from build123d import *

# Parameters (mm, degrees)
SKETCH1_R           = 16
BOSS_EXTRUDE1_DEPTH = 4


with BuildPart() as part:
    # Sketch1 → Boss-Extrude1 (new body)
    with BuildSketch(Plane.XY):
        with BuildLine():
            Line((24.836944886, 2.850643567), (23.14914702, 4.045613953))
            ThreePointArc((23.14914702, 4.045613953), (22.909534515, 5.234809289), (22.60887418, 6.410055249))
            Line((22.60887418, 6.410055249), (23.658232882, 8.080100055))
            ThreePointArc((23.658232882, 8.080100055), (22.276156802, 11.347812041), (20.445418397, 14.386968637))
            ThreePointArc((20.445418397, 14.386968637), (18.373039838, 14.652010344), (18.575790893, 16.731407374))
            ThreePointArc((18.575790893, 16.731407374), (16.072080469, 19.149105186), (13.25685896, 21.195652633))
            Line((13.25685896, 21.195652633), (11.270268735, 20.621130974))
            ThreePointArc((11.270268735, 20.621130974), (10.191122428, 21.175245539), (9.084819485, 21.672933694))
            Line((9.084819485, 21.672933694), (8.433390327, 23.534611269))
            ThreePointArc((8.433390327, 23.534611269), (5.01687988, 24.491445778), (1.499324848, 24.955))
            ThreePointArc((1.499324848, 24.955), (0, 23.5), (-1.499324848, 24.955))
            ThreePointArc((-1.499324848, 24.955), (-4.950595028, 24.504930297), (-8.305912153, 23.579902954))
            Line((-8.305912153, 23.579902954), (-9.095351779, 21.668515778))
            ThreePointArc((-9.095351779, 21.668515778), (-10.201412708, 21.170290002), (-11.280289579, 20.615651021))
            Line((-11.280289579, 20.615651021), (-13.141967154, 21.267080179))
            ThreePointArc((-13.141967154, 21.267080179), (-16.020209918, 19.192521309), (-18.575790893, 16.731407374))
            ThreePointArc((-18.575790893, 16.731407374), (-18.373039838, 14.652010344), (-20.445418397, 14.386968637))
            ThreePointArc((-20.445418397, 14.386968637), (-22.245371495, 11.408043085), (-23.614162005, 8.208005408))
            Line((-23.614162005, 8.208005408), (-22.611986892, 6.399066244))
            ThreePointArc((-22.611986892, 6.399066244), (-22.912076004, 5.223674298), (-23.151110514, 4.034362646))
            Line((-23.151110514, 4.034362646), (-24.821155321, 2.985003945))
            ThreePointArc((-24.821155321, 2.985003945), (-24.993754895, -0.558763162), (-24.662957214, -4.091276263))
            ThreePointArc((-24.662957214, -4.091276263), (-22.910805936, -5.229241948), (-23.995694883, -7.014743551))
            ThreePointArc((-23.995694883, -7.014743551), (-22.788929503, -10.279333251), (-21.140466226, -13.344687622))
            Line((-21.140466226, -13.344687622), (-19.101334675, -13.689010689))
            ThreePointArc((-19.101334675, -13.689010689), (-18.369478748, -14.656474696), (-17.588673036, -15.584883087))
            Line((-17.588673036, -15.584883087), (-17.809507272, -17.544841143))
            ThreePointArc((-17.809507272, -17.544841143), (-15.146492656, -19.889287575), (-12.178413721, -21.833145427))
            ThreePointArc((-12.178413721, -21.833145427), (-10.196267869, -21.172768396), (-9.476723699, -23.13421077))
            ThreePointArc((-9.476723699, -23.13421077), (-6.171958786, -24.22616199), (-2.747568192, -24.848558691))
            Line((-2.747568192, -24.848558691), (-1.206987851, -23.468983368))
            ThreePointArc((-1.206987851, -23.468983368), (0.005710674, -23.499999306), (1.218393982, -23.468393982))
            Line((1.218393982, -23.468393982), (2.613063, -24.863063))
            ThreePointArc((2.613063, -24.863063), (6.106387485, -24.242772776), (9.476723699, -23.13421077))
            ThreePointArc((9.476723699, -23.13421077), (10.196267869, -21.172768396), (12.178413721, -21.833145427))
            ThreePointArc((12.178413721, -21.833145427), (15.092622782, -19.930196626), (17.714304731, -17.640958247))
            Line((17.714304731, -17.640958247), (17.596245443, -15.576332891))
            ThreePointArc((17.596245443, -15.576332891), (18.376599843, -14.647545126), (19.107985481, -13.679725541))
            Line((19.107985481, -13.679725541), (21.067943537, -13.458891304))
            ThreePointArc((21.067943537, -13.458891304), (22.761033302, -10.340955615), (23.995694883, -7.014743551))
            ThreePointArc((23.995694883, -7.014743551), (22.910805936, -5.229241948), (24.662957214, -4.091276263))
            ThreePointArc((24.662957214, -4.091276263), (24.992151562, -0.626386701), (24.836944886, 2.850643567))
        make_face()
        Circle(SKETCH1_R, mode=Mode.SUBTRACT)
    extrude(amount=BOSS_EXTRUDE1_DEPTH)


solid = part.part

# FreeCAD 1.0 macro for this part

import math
import FreeCAD as App
import Part
import Sketcher

V = App.Vector
Q = App.Units.Quantity

doc = App.newDocument("Part")
body = doc.addObject("PartDesign::Body", "Body")

# Sketch on XY plane
sketch1 = body.newObject("Sketcher::SketchObject", "Sketch")
sketch1.AttachmentSupport = (doc.getObject("XY_Plane"), [""])
sketch1.MapMode = "FlatFace"
sketch1.addGeometry([
    Part.LineSegment(V(24.8, 2.9, 0), V(23.1, 4, 0)),  # 0
    Part.ArcOfCircle(Part.Circle(V(0, 0, 0), V(0, 0, 1), 23.5), math.radians(9.91), math.radians(15.83)),  # 1
    Part.LineSegment(V(22.6, 6.4, 0), V(23.7, 8.1, 0)),  # 2
    Part.ArcOfCircle(Part.Circle(V(0, 0, 0), V(0, 0, 1), 25), math.radians(18.86), math.radians(35.13)),  # 3
    Part.ArcOfCircle(Part.Circle(V(19.5, 15.6, 0), V(0, 0, 1), 1.5), math.radians(130), math.radians(307)),  # 4
    Part.ArcOfCircle(Part.Circle(V(0, 0, 0), V(0, 0, 1), 25), math.radians(42.01), math.radians(57.98)),  # 5
    Part.LineSegment(V(13.3, 21.2, 0), V(11.3, 20.6, 0)),  # 6
    Part.ArcOfCircle(Part.Circle(V(0, 0, 0), V(0, 0, 1), 23.5), math.radians(61.34), math.radians(67.26)),  # 7
    Part.LineSegment(V(9.1, 21.7, 0), V(8.4, 23.5, 0)),  # 8
    Part.ArcOfCircle(Part.Circle(V(0, 0, 0), V(0, 0, 1), 25), math.radians(70.29), math.radians(86.56)),  # 9
    Part.ArcOfCircle(Part.Circle(V(0, 25, 0), V(0, 0, 1), 1.5), math.radians(-178), math.radians(-2)),  # 10
    Part.ArcOfCircle(Part.Circle(V(0, 0, 0), V(0, 0, 1), 25), math.radians(93.44), math.radians(109.4)),  # 11
    Part.LineSegment(V(-8.3, 23.6, 0), V(-9.1, 21.7, 0)),  # 12
    Part.ArcOfCircle(Part.Circle(V(0, 0, 0), V(0, 0, 1), 23.5), math.radians(112.77), math.radians(118.69)),  # 13
    Part.LineSegment(V(-11.3, 20.6, 0), V(-13.1, 21.3, 0)),  # 14
    Part.ArcOfCircle(Part.Circle(V(0, 0, 0), V(0, 0, 1), 25), math.radians(121.71), math.radians(137.99)),  # 15
    Part.ArcOfCircle(Part.Circle(V(-19.5, 15.6, 0), V(0, 0, 1), 1.5), math.radians(-127), math.radians(50)),  # 16
    Part.ArcOfCircle(Part.Circle(V(0, 0, 0), V(0, 0, 1), 25), math.radians(144.87), math.radians(160.83)),  # 17
    Part.LineSegment(V(-23.6, 8.2, 0), V(-22.6, 6.4, 0)),  # 18
    Part.ArcOfCircle(Part.Circle(V(0, 0, 0), V(0, 0, 1), 23.5), math.radians(164.2), math.radians(170.11)),  # 19
    Part.LineSegment(V(-23.2, 4, 0), V(-24.8, 3, 0)),  # 20
    Part.ArcOfCircle(Part.Circle(V(0, 0, 0), V(0, 0, 1), 25), math.radians(173.14), math.radians(189.42)),  # 21
    Part.ArcOfCircle(Part.Circle(V(-24.4, -5.6, 0), V(0, 0, 1), 1.5), math.radians(-75), math.radians(101)),  # 22
    Part.ArcOfCircle(Part.Circle(V(0, 0, 0), V(0, 0, 1), 25), math.radians(-163.7), math.radians(-147.74)),  # 23
    Part.LineSegment(V(-21.1, -13.3, 0), V(-19.1, -13.7, 0)),  # 24
    Part.ArcOfCircle(Part.Circle(V(0, 0, 0), V(0, 0, 1), 23.5), math.radians(-144.37), math.radians(-138.46)),  # 25
    Part.LineSegment(V(-17.6, -15.6, 0), V(-17.8, -17.5, 0)),  # 26
    Part.ArcOfCircle(Part.Circle(V(0, 0, 0), V(0, 0, 1), 25), math.radians(-135.43), math.radians(-119.15)),  # 27
    Part.ArcOfCircle(Part.Circle(V(-10.8, -22.5, 0), V(0, 0, 1), 1.5), math.radians(-24), math.radians(153)),  # 28
    Part.ArcOfCircle(Part.Circle(V(0, 0, 0), V(0, 0, 1), 25), math.radians(-112.28), math.radians(-96.31)),  # 29
    Part.LineSegment(V(-2.7, -24.8, 0), V(-1.2, -23.5, 0)),  # 30
    Part.ArcOfCircle(Part.Circle(V(0, 0, 0), V(0, 0, 1), 23.5), math.radians(-92.94), math.radians(-87.03)),  # 31
    Part.LineSegment(V(1.2, -23.5, 0), V(2.6, -24.9, 0)),  # 32
    Part.ArcOfCircle(Part.Circle(V(0, 0, 0), V(0, 0, 1), 25), math.radians(-84), math.radians(-67.72)),  # 33
    Part.ArcOfCircle(Part.Circle(V(10.8, -22.5, 0), V(0, 0, 1), 1.5), math.radians(27), math.radians(204)),  # 34
    Part.ArcOfCircle(Part.Circle(V(0, 0, 0), V(0, 0, 1), 25), math.radians(-60.85), math.radians(-44.88)),  # 35
    Part.LineSegment(V(17.7, -17.6, 0), V(17.6, -15.6, 0)),  # 36
    Part.ArcOfCircle(Part.Circle(V(0, 0, 0), V(0, 0, 1), 23.5), math.radians(-41.52), math.radians(-35.6)),  # 37
    Part.LineSegment(V(19.1, -13.7, 0), V(21.1, -13.5, 0)),  # 38
    Part.ArcOfCircle(Part.Circle(V(0, 0, 0), V(0, 0, 1), 25), math.radians(-32.57), math.radians(-16.3)),  # 39
    Part.ArcOfCircle(Part.Circle(V(24.4, -5.6, 0), V(0, 0, 1), 1.5), math.radians(79), math.radians(255)),  # 40
    Part.ArcOfCircle(Part.Circle(V(0, 0, 0), V(0, 0, 1), 25), math.radians(-9.42), math.radians(6.55)),  # 41
    Part.Circle(V(0, 0, 0), V(0, 0, 1), 16),  # 42
], False)
sketch1.addConstraint([
    Sketcher.Constraint("Coincident", 0, 2, 1, 1),
    Sketcher.Constraint("Coincident", 1, 2, 2, 1),
    Sketcher.Constraint("Coincident", 2, 2, 3, 1),
    Sketcher.Constraint("Coincident", 3, 2, 4, 2),
    Sketcher.Constraint("Coincident", 4, 1, 5, 1),
    Sketcher.Constraint("Coincident", 5, 2, 6, 1),
    Sketcher.Constraint("Coincident", 6, 2, 7, 1),
    Sketcher.Constraint("Coincident", 7, 2, 8, 1),
    Sketcher.Constraint("Coincident", 8, 2, 9, 1),
    Sketcher.Constraint("Coincident", 9, 2, 10, 2),
    Sketcher.Constraint("Coincident", 10, 1, 11, 1),
    Sketcher.Constraint("Coincident", 11, 2, 12, 1),
    Sketcher.Constraint("Coincident", 12, 2, 13, 1),
    Sketcher.Constraint("Coincident", 13, 2, 14, 1),
    Sketcher.Constraint("Coincident", 14, 2, 15, 1),
    Sketcher.Constraint("Coincident", 15, 2, 16, 2),
    Sketcher.Constraint("Coincident", 16, 1, 17, 1),
    Sketcher.Constraint("Coincident", 17, 2, 18, 1),
    Sketcher.Constraint("Coincident", 18, 2, 19, 1),
    Sketcher.Constraint("Coincident", 19, 2, 20, 1),
    Sketcher.Constraint("Coincident", 20, 2, 21, 1),
    Sketcher.Constraint("Coincident", 21, 2, 22, 2),
    Sketcher.Constraint("Coincident", 22, 1, 23, 1),
    Sketcher.Constraint("Coincident", 23, 2, 24, 1),
    Sketcher.Constraint("Coincident", 24, 2, 25, 1),
    Sketcher.Constraint("Coincident", 25, 2, 26, 1),
    Sketcher.Constraint("Coincident", 26, 2, 27, 1),
    Sketcher.Constraint("Coincident", 27, 2, 28, 2),
    Sketcher.Constraint("Coincident", 28, 1, 29, 1),
    Sketcher.Constraint("Coincident", 29, 2, 30, 1),
    Sketcher.Constraint("Coincident", 30, 2, 31, 1),
    Sketcher.Constraint("Coincident", 31, 2, 32, 1),
    Sketcher.Constraint("Coincident", 32, 2, 33, 1),
    Sketcher.Constraint("Coincident", 33, 2, 34, 2),
    Sketcher.Constraint("Coincident", 34, 1, 35, 1),
    Sketcher.Constraint("Coincident", 35, 2, 36, 1),
    Sketcher.Constraint("Coincident", 36, 2, 37, 1),
    Sketcher.Constraint("Coincident", 37, 2, 38, 1),
    Sketcher.Constraint("Coincident", 38, 2, 39, 1),
    Sketcher.Constraint("Coincident", 39, 2, 40, 2),
    Sketcher.Constraint("Coincident", 40, 1, 41, 1),
    Sketcher.Constraint("Coincident", 41, 2, 0, 1),
    Sketcher.Constraint("Coincident", 1, 3, -1, 1),
    Sketcher.Constraint("Coincident", 3, 3, -1, 1),
    Sketcher.Constraint("Coincident", 5, 3, -1, 1),
    Sketcher.Constraint("Coincident", 7, 3, -1, 1),
    Sketcher.Constraint("Coincident", 9, 3, -1, 1),
    Sketcher.Constraint("Coincident", 11, 3, -1, 1),
    Sketcher.Constraint("Coincident", 13, 3, -1, 1),
    Sketcher.Constraint("Coincident", 15, 3, -1, 1),
    Sketcher.Constraint("Coincident", 17, 3, -1, 1),
    Sketcher.Constraint("Coincident", 19, 3, -1, 1),
    Sketcher.Constraint("Coincident", 21, 3, -1, 1),
    Sketcher.Constraint("Coincident", 23, 3, -1, 1),
    Sketcher.Constraint("Coincident", 25, 3, -1, 1),
    Sketcher.Constraint("Coincident", 27, 3, -1, 1),
    Sketcher.Constraint("Coincident", 29, 3, -1, 1),
    Sketcher.Constraint("Coincident", 31, 3, -1, 1),
    Sketcher.Constraint("Coincident", 33, 3, -1, 1),
    Sketcher.Constraint("Coincident", 35, 3, -1, 1),
    Sketcher.Constraint("Coincident", 37, 3, -1, 1),
    Sketcher.Constraint("Coincident", 39, 3, -1, 1),
    Sketcher.Constraint("Coincident", 41, 3, -1, 1),
    Sketcher.Constraint("Coincident", 42, 3, -1, 1),
    Sketcher.Constraint("Equal", 3, 5),
    Sketcher.Constraint("Equal", 1, 7),
    Sketcher.Constraint("Equal", 5, 9),
    Sketcher.Constraint("Equal", 4, 10),
    Sketcher.Constraint("Equal", 9, 11),
    Sketcher.Constraint("Equal", 7, 13),
    Sketcher.Constraint("Equal", 11, 15),
    Sketcher.Constraint("Equal", 10, 16),
    Sketcher.Constraint("Equal", 15, 17),
    Sketcher.Constraint("Equal", 13, 19),
    Sketcher.Constraint("Equal", 17, 21),
    Sketcher.Constraint("Equal", 16, 22),
    Sketcher.Constraint("Equal", 21, 23),
    Sketcher.Constraint("Equal", 19, 25),
    Sketcher.Constraint("Equal", 23, 27),
    Sketcher.Constraint("Equal", 22, 28),
    Sketcher.Constraint("Equal", 27, 29),
    Sketcher.Constraint("Equal", 25, 31),
    Sketcher.Constraint("Equal", 29, 33),
    Sketcher.Constraint("Equal", 28, 34),
    Sketcher.Constraint("Equal", 33, 35),
    Sketcher.Constraint("Equal", 31, 37),
    Sketcher.Constraint("Equal", 35, 39),
    Sketcher.Constraint("Equal", 34, 40),
    Sketcher.Constraint("Equal", 39, 41),
    Sketcher.Constraint("Symmetric", 4, 3, 16, 3, -2),
    Sketcher.Constraint("Symmetric", 28, 3, 34, 3, -2),
    Sketcher.Constraint("Symmetric", 22, 3, 40, 3, -2),
    Sketcher.Constraint("PointOnObject", 10, 3, -2),
    Sketcher.Constraint("Equal", 0, 6),
    Sketcher.Constraint("Equal", 2, 8),
    Sketcher.Constraint("Equal", 6, 12),
    Sketcher.Constraint("Equal", 8, 14),
    Sketcher.Constraint("Equal", 12, 18),
    Sketcher.Constraint("Equal", 14, 20),
    Sketcher.Constraint("Equal", 18, 24),
    Sketcher.Constraint("Equal", 20, 26),
    Sketcher.Constraint("Equal", 24, 30),
    Sketcher.Constraint("Equal", 26, 32),
    Sketcher.Constraint("Equal", 30, 36),
    Sketcher.Constraint("Equal", 32, 38),
    Sketcher.Constraint("Diameter", 42, 32.0),
    Sketcher.Constraint("Radius", 3, 25.0),
    Sketcher.Constraint("Radius", 1, 23.5),
    Sketcher.Constraint("Radius", 4, 1.5),
    Sketcher.Constraint("Angle", 32, Q("-45 deg")),
    Sketcher.Constraint("DistanceY", -1, 1, 10, 3, 25.0),
    Sketcher.Constraint("Distance", 0, 2.067998),
    Sketcher.Constraint("DistanceY", -1, 1, 2, 2, 8.0801),
    Sketcher.Constraint("Distance", 2, 1.97236),
    Sketcher.Constraint("DistanceY", 28, 3, -1, 1, 22.524222),
    Sketcher.Constraint("DistanceX", -1, 1, 3, 2, 20.445418),
    Sketcher.Constraint("DistanceX", -1, 1, 4, 1, 18.575791),
    Sketcher.Constraint("DistanceX", -1, 1, 5, 2, 13.256859),
    Sketcher.Constraint("DistanceX", -1, 1, 7, 2, 9.084819),
    Sketcher.Constraint("DistanceX", 12, 2, -1, 1, 9.095352),
    Sketcher.Constraint("DistanceX", 13, 2, -1, 1, 11.28029),
    Sketcher.Constraint("DistanceX", 19, 2, -1, 1, 23.151111),
    Sketcher.Constraint("DistanceY", 24, 2, -1, 1, 13.689011),
    Sketcher.Constraint("DistanceY", 26, 2, -1, 1, 17.544841),
    Sketcher.Constraint("DistanceY", 28, 1, -1, 1, 23.134211),
    Sketcher.Constraint("DistanceX", 29, 2, -1, 1, 2.747568),
    Sketcher.Constraint("DistanceY", 35, 2, -1, 1, 17.640958),
    Sketcher.Constraint("DistanceY", 38, 2, -1, 1, 13.458891),
    Sketcher.Constraint("DistanceX", 22, 3, -1, 1, 24.373198),
    Sketcher.Constraint("DistanceY", 22, 3, -1, 1, 5.563023),
    Sketcher.Constraint("DistanceX", -1, 1, 0, 2, 23.149147),
    Sketcher.Constraint("DistanceX", 17, 2, -1, 1, 23.614162),
])
pad1 = body.newObject("PartDesign::Pad", "Pad")
pad1.Profile = sketch1
pad1.Length = 4

doc.recompute()
